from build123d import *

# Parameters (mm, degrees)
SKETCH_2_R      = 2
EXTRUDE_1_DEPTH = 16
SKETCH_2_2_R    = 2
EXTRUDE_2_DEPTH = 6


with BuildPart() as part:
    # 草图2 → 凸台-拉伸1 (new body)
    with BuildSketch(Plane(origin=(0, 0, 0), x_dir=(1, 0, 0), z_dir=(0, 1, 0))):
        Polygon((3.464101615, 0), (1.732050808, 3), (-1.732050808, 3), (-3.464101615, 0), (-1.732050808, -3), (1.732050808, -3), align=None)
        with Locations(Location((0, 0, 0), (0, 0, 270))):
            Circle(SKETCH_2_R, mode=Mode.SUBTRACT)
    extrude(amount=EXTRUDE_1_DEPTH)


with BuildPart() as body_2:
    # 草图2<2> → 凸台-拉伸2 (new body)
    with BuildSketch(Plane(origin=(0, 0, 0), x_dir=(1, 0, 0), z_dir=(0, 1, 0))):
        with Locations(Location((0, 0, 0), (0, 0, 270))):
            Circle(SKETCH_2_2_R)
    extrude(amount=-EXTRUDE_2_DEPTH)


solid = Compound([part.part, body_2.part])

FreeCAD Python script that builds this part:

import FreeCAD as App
import Part
import Sketcher
Q = App.Units.Quantity

doc = App.newDocument("Part")
body = doc.addObject("PartDesign::Body", "Body")

# Sketch on XZ plane
sketch1 = body.newObject("Sketcher::SketchObject", "Sketch")
sketch1.AttachmentSupport = (doc.getObject("XZ_Plane"), [""])
sketch1.MapMode = "FlatFace"
sketch1.addGeometry([
    Part.LineSegment(App.Vector(3.5, 0, 0), App.Vector(1.7, -3, 0)),  # 0
    Part.LineSegment(App.Vector(1.7, -3, 0), App.Vector(-1.7, -3, 0)),  # 1
    Part.LineSegment(App.Vector(-1.7, -3, 0), App.Vector(-3.5, 0, 0)),  # 2
    Part.LineSegment(App.Vector(-3.5, 0, 0), App.Vector(-1.7, 3, 0)),  # 3
    Part.LineSegment(App.Vector(-1.7, 3, 0), App.Vector(1.7, 3, 0)),  # 4
    Part.LineSegment(App.Vector(1.7, 3, 0), App.Vector(3.5, 0, 0)),  # 5
    Part.Circle(App.Vector(0, 0, 0), App.Vector(0, 0, 1), 2),  # 6
], False)
sketch1.addConstraint([
    Sketcher.Constraint("Coincident", 0, 2, 1, 1),
    Sketcher.Constraint("Coincident", 1, 2, 2, 1),
    Sketcher.Constraint("Coincident", 2, 2, 3, 1),
    Sketcher.Constraint("Coincident", 3, 2, 4, 1),
    Sketcher.Constraint("Coincident", 4, 2, 5, 1),
    Sketcher.Constraint("Coincident", 5, 2, 0, 1),
    Sketcher.Constraint("Horizontal", 1),
    Sketcher.Constraint("Horizontal", 4),
    Sketcher.Constraint("Coincident", 6, 3, -1, 1),
    Sketcher.Constraint("Symmetric", 0, 2, 3, 2, -1, 1),
    Sketcher.Constraint("Symmetric", 2, 2, 5, 2, -1, 1),
    Sketcher.Constraint("PointOnObject", 2, 2, -1),
    Sketcher.Constraint("Parallel", 2, 5),
    Sketcher.Constraint("Vertical", 1, 2, 3, 2),
    Sketcher.Constraint("Diameter", 6, Q("4 mm")),
    Sketcher.Constraint("Angle", 0, Q("-120 deg")),
    Sketcher.Constraint("DistanceY", 0, 2, -1, 1, Q("3 mm")),
    Sketcher.Constraint("DistanceX", 1, 2, 1, 1, Q("3.464102 mm")),
])
pad1 = body.newObject("PartDesign::Pad", "Pad")
pad1.Profile = sketch1
pad1.Length = 16
pad1.Reversed = True
body2 = doc.addObject("PartDesign::Body", "Body001")

# Sketch on XZ plane
sketch2 = body2.newObject("Sketcher::SketchObject", "Sketch001")
sketch2.AttachmentSupport = (doc.getObject("XZ_Plane001"), [""])
sketch2.MapMode = "FlatFace"
sketch2.addGeometry(Part.Circle(App.Vector(0, 0, 0), App.Vector(0, 0, 1), 2), False)
sketch2.addConstraint([
    Sketcher.Constraint("Coincident", 0, 3, -1, 1),
    Sketcher.Constraint("Diameter", 0, Q("4 mm")),
])
pad2 = body2.newObject("PartDesign::Pad", "Pad001")
pad2.Profile = sketch2
pad2.Length = 6

doc.recompute()
